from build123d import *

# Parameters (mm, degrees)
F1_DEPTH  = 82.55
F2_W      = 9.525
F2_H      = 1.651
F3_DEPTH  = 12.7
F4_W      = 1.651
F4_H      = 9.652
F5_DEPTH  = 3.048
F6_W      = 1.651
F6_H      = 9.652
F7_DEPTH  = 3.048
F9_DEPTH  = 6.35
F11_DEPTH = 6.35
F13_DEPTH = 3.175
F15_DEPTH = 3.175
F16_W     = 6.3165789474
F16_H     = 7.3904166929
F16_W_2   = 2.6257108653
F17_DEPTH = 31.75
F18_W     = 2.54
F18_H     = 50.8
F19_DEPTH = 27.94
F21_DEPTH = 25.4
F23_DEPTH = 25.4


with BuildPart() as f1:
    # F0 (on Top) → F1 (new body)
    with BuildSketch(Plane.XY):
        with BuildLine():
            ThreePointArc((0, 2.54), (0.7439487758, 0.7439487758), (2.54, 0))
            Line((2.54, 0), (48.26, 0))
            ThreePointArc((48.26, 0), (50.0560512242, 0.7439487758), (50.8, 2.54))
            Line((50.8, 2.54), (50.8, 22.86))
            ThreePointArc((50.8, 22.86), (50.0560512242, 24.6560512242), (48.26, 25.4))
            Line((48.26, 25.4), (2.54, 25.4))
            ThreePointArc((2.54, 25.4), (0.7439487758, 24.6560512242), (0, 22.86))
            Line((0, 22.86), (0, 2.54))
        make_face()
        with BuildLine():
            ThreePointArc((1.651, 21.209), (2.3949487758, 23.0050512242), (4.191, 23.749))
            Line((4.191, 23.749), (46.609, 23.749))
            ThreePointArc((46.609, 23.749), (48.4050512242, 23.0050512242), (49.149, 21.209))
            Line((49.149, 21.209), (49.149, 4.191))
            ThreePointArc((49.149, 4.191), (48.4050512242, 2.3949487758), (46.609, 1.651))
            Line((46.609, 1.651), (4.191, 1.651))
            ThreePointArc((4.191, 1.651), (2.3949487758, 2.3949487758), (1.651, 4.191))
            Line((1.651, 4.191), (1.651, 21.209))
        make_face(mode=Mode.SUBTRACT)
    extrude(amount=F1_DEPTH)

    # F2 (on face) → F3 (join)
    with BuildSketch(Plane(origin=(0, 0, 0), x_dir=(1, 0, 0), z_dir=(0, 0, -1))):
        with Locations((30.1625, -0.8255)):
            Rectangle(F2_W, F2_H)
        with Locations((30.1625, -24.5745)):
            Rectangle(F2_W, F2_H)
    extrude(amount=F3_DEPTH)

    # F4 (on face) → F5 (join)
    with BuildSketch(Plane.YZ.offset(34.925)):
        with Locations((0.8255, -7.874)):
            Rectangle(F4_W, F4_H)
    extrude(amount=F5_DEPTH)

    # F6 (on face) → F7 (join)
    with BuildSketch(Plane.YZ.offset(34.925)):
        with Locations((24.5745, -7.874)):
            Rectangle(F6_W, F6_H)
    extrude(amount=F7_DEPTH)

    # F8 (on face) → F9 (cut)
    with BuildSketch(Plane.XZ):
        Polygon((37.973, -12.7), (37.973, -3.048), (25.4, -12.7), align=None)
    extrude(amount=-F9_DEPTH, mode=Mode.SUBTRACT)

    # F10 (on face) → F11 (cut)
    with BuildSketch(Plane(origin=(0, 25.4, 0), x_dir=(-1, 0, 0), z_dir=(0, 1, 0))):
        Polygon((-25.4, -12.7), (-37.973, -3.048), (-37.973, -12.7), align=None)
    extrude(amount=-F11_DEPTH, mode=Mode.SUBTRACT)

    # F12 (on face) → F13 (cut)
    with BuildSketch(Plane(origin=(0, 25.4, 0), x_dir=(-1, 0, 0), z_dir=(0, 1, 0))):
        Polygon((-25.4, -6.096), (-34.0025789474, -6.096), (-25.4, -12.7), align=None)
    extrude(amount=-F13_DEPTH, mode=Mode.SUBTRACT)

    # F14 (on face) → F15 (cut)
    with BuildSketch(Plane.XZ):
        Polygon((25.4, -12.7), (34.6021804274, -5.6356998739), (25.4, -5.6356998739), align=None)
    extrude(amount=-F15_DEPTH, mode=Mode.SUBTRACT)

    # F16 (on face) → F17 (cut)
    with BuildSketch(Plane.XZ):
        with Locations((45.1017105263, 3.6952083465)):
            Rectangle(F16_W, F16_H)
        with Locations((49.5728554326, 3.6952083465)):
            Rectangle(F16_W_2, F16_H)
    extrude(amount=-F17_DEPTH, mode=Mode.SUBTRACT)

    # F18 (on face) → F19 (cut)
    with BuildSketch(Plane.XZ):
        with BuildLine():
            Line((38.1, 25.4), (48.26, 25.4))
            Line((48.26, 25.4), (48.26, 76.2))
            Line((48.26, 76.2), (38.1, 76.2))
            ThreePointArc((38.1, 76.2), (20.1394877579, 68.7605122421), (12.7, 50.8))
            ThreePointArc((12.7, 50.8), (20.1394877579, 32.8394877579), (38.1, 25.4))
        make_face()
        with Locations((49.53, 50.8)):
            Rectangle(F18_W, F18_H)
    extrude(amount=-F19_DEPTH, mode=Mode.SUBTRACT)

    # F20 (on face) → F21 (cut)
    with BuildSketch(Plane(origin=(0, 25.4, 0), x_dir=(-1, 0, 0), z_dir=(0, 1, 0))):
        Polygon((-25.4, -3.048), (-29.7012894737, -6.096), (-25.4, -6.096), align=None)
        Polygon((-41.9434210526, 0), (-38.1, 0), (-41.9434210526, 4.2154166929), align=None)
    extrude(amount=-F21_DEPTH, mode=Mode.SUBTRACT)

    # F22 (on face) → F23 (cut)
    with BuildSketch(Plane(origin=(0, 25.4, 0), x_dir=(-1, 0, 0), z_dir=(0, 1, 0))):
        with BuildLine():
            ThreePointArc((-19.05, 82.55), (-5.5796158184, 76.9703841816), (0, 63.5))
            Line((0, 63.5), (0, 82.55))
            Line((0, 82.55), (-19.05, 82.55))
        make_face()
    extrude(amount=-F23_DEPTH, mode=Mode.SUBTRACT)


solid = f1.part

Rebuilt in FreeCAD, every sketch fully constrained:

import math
import FreeCAD as App
import Part
import Sketcher

V = App.Vector
Q = App.Units.Quantity


def add_polygon(sketch, points):
    """Adds a closed chain of lines whose ends are joined by coincident constraints."""
    first, n = sketch.GeometryCount, len(points)
    for a, b in zip(points, points[1:] + points[:1]):
        sketch.addGeometry(Part.LineSegment(App.Vector(*a, 0), App.Vector(*b, 0)), False)
    for i in range(n):
        sketch.addConstraint(Sketcher.Constraint("Coincident", first + i, 2, first + (i + 1) % n, 1))

doc = App.newDocument("Part")
body = doc.addObject("PartDesign::Body", "Body")

# Sketch on XY plane
sketch1 = body.newObject("Sketcher::SketchObject", "Sketch")
sketch1.AttachmentSupport = (doc.getObject("XY_Plane"), [""])
sketch1.MapMode = "FlatFace"
sketch1.addGeometry([
    Part.ArcOfCircle(Part.Circle(V(2.54, 2.54, 0), V(0, 0, 1), 2.54), math.radians(180), math.radians(270)),  # 0
    Part.LineSegment(V(2.54, 0, 0), V(48.26, 0, 0)),  # 1
    Part.ArcOfCircle(Part.Circle(V(48.26, 2.54, 0), V(0, 0, 1), 2.54), math.radians(-90), math.radians(0)),  # 2
    Part.LineSegment(V(50.8, 2.54, 0), V(50.8, 22.86, 0)),  # 3
    Part.ArcOfCircle(Part.Circle(V(48.26, 22.86, 0), V(0, 0, 1), 2.54), math.radians(0), math.radians(90)),  # 4
    Part.LineSegment(V(48.26, 25.4, 0), V(2.54, 25.4, 0)),  # 5
    Part.ArcOfCircle(Part.Circle(V(2.54, 22.86, 0), V(0, 0, 1), 2.54), math.radians(90), math.radians(180)),  # 6
    Part.LineSegment(V(0, 22.86, 0), V(0, 2.54, 0)),  # 7
    Part.LineSegment(V(1.651, 4.191, 0), V(1.651, 21.209, 0)),  # 8
    Part.ArcOfCircle(Part.Circle(V(4.191, 21.209, 0), V(0, 0, 1), 2.54), math.radians(90), math.radians(180)),  # 9
    Part.LineSegment(V(4.191, 23.749, 0), V(46.609, 23.749, 0)),  # 10
    Part.ArcOfCircle(Part.Circle(V(46.609, 21.209, 0), V(0, 0, 1), 2.54), math.radians(0), math.radians(90)),  # 11
    Part.LineSegment(V(49.149, 21.209, 0), V(49.149, 4.191, 0)),  # 12
    Part.ArcOfCircle(Part.Circle(V(46.609, 4.191, 0), V(0, 0, 1), 2.54), math.radians(-90), math.radians(0)),  # 13
    Part.LineSegment(V(46.609, 1.651, 0), V(4.191, 1.651, 0)),  # 14
    Part.ArcOfCircle(Part.Circle(V(4.191, 4.191, 0), V(0, 0, 1), 2.54), math.radians(180), math.radians(270)),  # 15
], False)
sketch1.addConstraint([
    Sketcher.Constraint("Tangent", 0, 2, 1, 1),
    Sketcher.Constraint("Tangent", 1, 2, 2, 1),
    Sketcher.Constraint("Tangent", 2, 2, 3, 1),
    Sketcher.Constraint("Tangent", 3, 2, 4, 1),
    Sketcher.Constraint("Tangent", 4, 2, 5, 1),
    Sketcher.Constraint("Tangent", 5, 2, 6, 1),
    Sketcher.Constraint("Tangent", 6, 2, 7, 1),
    Sketcher.Constraint("Tangent", 7, 2, 0, 1),
    Sketcher.Constraint("Tangent", 8, 2, 9, 2),
    Sketcher.Constraint("Tangent", 9, 1, 10, 1),
    Sketcher.Constraint("Tangent", 10, 2, 11, 2),
    Sketcher.Constraint("Tangent", 11, 1, 12, 1),
    Sketcher.Constraint("Tangent", 12, 2, 13, 2),
    Sketcher.Constraint("Tangent", 13, 1, 14, 1),
    Sketcher.Constraint("Tangent", 14, 2, 15, 2),
    Sketcher.Constraint("Tangent", 15, 1, 8, 1),
    Sketcher.Constraint("Horizontal", 1),
    Sketcher.Constraint("Vertical", 3),
    Sketcher.Constraint("Horizontal", 5),
    Sketcher.Constraint("Vertical", 7),
    Sketcher.Constraint("Vertical", 8),
    Sketcher.Constraint("Horizontal", 10),
    Sketcher.Constraint("Vertical", 12),
    Sketcher.Constraint("Horizontal", 14),
    Sketcher.Constraint("Equal", 0, 2),
    Sketcher.Constraint("Equal", 2, 4),
    Sketcher.Constraint("Equal", 4, 6),
    Sketcher.Constraint("Equal", 6, 9),
    Sketcher.Constraint("Equal", 9, 11),
    Sketcher.Constraint("Equal", 11, 13),
    Sketcher.Constraint("Equal", 13, 15),
    Sketcher.Constraint("PointOnObject", 0, 2, -1),
    Sketcher.Constraint("PointOnObject", 6, 2, -2),
    Sketcher.Constraint("Radius", 0, Q("0.1 in")),
    Sketcher.Constraint("DistanceX", 1, 1, 1, 2, Q("1.8 in")),
    Sketcher.Constraint("DistanceY", 3, 1, 3, 2, Q("0.8 in")),
    Sketcher.Constraint("DistanceX", 10, 1, 10, 2, Q("1.67 in")),
    Sketcher.Constraint("DistanceY", 8, 1, 8, 2, Q("0.67 in")),
    Sketcher.Constraint("DistanceX", -1, 1, 9, 3, Q("0.165 in")),
    Sketcher.Constraint("DistanceY", -1, 1, 9, 3, Q("0.835 in")),
])
pad1 = body.newObject("PartDesign::Pad", "Pad")
pad1.Profile = sketch1
pad1.Length = Q("3.25 in")

# Sketch on XY plane
sketch2 = body.newObject("Sketcher::SketchObject", "Sketch001")
sketch2.AttachmentSupport = (doc.getObject("XY_Plane"), [""])
sketch2.MapMode = "FlatFace"
add_polygon(sketch2, [(25.4, 0), (25.4, 1.651), (34.925, 1.651), (34.925, 0)])  # lines 0-3
add_polygon(sketch2, [(25.4, 23.749), (25.4, 25.4), (34.925, 25.4), (34.925, 23.749)])  # lines 4-7
sketch2.addConstraint([
    Sketcher.Constraint("Vertical", 0),
    Sketcher.Constraint("Horizontal", 1),
    Sketcher.Constraint("Vertical", 2),
    Sketcher.Constraint("Horizontal", 3),
    Sketcher.Constraint("Vertical", 4),
    Sketcher.Constraint("Horizontal", 5),
    Sketcher.Constraint("Vertical", 6),
    Sketcher.Constraint("Horizontal", 7),
    Sketcher.Constraint("PointOnObject", 2, 2, -1),
    Sketcher.Constraint("Vertical", 3, 2, 4, 2),
    Sketcher.Constraint("Vertical", 2, 2, 5, 2),
    Sketcher.Constraint("Equal", 2, 4),
    Sketcher.Constraint("DistanceX", -1, 1, 0, 2, Q("1 in")),
    Sketcher.Constraint("DistanceY", -1, 1, 4, 2, Q("1 in")),
    Sketcher.Constraint("DistanceX", 1, 1, 1, 2, Q("0.375 in")),
    Sketcher.Constraint("DistanceY", 0, 1, 0, 2, Q("0.065 in")),
])
pad2 = body.newObject("PartDesign::Pad", "Pad001")
pad2.Profile = sketch2
pad2.Length = Q("0.5 in")
pad2.Reversed = True

# Sketch on YZ plane
sketch3 = body.newObject("Sketcher::SketchObject", "Sketch002")
sketch3.AttachmentSupport = (doc.getObject("YZ_Plane"), [""])
sketch3.MapMode = "FlatFace"
sketch3.AttachmentOffset = App.Placement(V(0, 0, 1.375 * 25.4), App.Rotation())
add_polygon(sketch3, [(0, -3.048), (0, -12.7), (1.651, -12.7), (1.651, -3.048)])  # lines 0-3
sketch3.addConstraint([
    Sketcher.Constraint("Vertical", 0),
    Sketcher.Constraint("Horizontal", 1),
    Sketcher.Constraint("Vertical", 2),
    Sketcher.Constraint("Horizontal", 3),
    Sketcher.Constraint("PointOnObject", 0, 2, -2),
    Sketcher.Constraint("DistanceY", 0, 2, 0, 1, Q("0.38 in")),
    Sketcher.Constraint("DistanceY", 0, 2, -1, 1, Q("0.5 in")),
    Sketcher.Constraint("DistanceX", 1, 1, 1, 2, Q("0.065 in")),
])
pad3 = body.newObject("PartDesign::Pad", "Pad002")
pad3.Profile = sketch3
pad3.Length = Q("0.12 in")

# Sketch on YZ plane
sketch4 = body.newObject("Sketcher::SketchObject", "Sketch003")
sketch4.AttachmentSupport = (doc.getObject("YZ_Plane"), [""])
sketch4.MapMode = "FlatFace"
sketch4.AttachmentOffset = App.Placement(V(0, 0, 1.375 * 25.4), App.Rotation())
add_polygon(sketch4, [(23.749, -3.048), (23.749, -12.7), (25.4, -12.7), (25.4, -3.048)])  # lines 0-3
sketch4.addConstraint([
    Sketcher.Constraint("Vertical", 0),
    Sketcher.Constraint("Horizontal", 1),
    Sketcher.Constraint("Vertical", 2),
    Sketcher.Constraint("Horizontal", 3),
    Sketcher.Constraint("DistanceX", -1, 1, 1, 2, Q("1 in")),
    Sketcher.Constraint("DistanceY", 0, 2, 0, 1, Q("0.38 in")),
    Sketcher.Constraint("DistanceY", 0, 2, -1, 1, Q("0.5 in")),
    Sketcher.Constraint("DistanceX", 1, 1, 1, 2, Q("0.065 in")),
])
pad4 = body.newObject("PartDesign::Pad", "Pad003")
pad4.Profile = sketch4
pad4.Length = Q("0.12 in")

# Sketch on XZ plane
sketch5 = body.newObject("Sketcher::SketchObject", "Sketch004")
sketch5.AttachmentSupport = (doc.getObject("XZ_Plane"), [""])
sketch5.MapMode = "FlatFace"
add_polygon(sketch5, [(37.973, -12.7), (37.973, -3.048), (25.4, -12.7)])  # lines 0-2
sketch5.addConstraint([
    Sketcher.Constraint("Vertical", 0),
    Sketcher.Constraint("Horizontal", 2),
    Sketcher.Constraint("DistanceX", -1, 1, 1, 2, Q("1 in")),
    Sketcher.Constraint("DistanceY", 0, 1, 0, 2, Q("0.38 in")),
    Sketcher.Constraint("DistanceY", 1, 2, -1, 1, Q("0.5 in")),
    Sketcher.Constraint("DistanceX", 2, 1, 2, 2, Q("0.495 in")),
])
pocket1 = body.newObject("PartDesign::Pocket", "Pocket")
pocket1.Profile = sketch5
pocket1.Length = Q("0.25 in")

# Sketch on XZ plane
sketch6 = body.newObject("Sketcher::SketchObject", "Sketch005")
sketch6.AttachmentSupport = (doc.getObject("XZ_Plane"), [""])
sketch6.MapMode = "FlatFace"
sketch6.AttachmentOffset = App.Placement(V(0, 0, -1 * 25.4), App.Rotation())
add_polygon(sketch6, [(25.4, -12.7), (37.973, -3.048), (37.973, -12.7)])  # lines 0-2
sketch6.addConstraint([
    Sketcher.Constraint("Vertical", 1),
    Sketcher.Constraint("Horizontal", 2),
    Sketcher.Constraint("DistanceX", -1, 1, 2, 2, Q("1 in")),
    Sketcher.Constraint("DistanceY", 1, 2, 1, 1, Q("0.38 in")),
    Sketcher.Constraint("DistanceY", 1, 2, -1, 1, Q("0.5 in")),
    Sketcher.Constraint("DistanceX", 2, 2, 2, 1, Q("0.495 in")),
])
pocket2 = body.newObject("PartDesign::Pocket", "Pocket001")
pocket2.Profile = sketch6
pocket2.Length = Q("0.25 in")
pocket2.Reversed = True

# Sketch on XZ plane
sketch7 = body.newObject("Sketcher::SketchObject", "Sketch006")
sketch7.AttachmentSupport = (doc.getObject("XZ_Plane"), [""])
sketch7.MapMode = "FlatFace"
sketch7.AttachmentOffset = App.Placement(V(0, 0, -1 * 25.4), App.Rotation())
add_polygon(sketch7, [(25.4, -6.096), (34.002579, -6.096), (25.4, -12.7)])  # lines 0-2
sketch7.addConstraint([
    Sketcher.Constraint("Horizontal", 0),
    Sketcher.Constraint("Vertical", 2),
    Sketcher.Constraint("DistanceX", -1, 1, 1, 2, Q("1 in")),
    Sketcher.Constraint("DistanceY", 2, 1, 2, 2, Q("0.26 in")),
    Sketcher.Constraint("DistanceY", 1, 2, -1, 1, Q("0.5 in")),
    Sketcher.Constraint("DistanceX", 0, 1, 0, 2, Q("8.602579 mm")),
])
pocket3 = body.newObject("PartDesign::Pocket", "Pocket002")
pocket3.Profile = sketch7
pocket3.Length = Q("0.125 in")
pocket3.Reversed = True

# Sketch on XZ plane
sketch8 = body.newObject("Sketcher::SketchObject", "Sketch007")
sketch8.AttachmentSupport = (doc.getObject("XZ_Plane"), [""])
sketch8.MapMode = "FlatFace"
add_polygon(sketch8, [(25.4, -12.7), (34.60218, -5.6357), (25.4, -5.6357)])  # lines 0-2
sketch8.addConstraint([
    Sketcher.Constraint("Horizontal", 1),
    Sketcher.Constraint("Vertical", 2),
    Sketcher.Constraint("DistanceX", -1, 1, 1, 2, Q("1 in")),
    Sketcher.Constraint("DistanceY", 2, 2, -1, 1, Q("0.5 in")),
    Sketcher.Constraint("DistanceY", 2, 2, 2, 1, Q("7.0643 mm")),
    Sketcher.Constraint("DistanceX", 1, 2, 1, 1, Q("9.20218 mm")),
])
pocket4 = body.newObject("PartDesign::Pocket", "Pocket003")
pocket4.Profile = sketch8
pocket4.Length = Q("0.125 in")

# Sketch on XZ plane
sketch9 = body.newObject("Sketcher::SketchObject", "Sketch008")
sketch9.AttachmentSupport = (doc.getObject("XZ_Plane"), [""])
sketch9.MapMode = "FlatFace"
add_polygon(sketch9, [(41.943421, 7.390417), (41.943421, 0), (50.885711, 0), (50.885711, 7.390417)])  # lines 0-3
sketch9.addConstraint([
    Sketcher.Constraint("Vertical", 0),
    Sketcher.Constraint("Horizontal", 1),
    Sketcher.Constraint("Vertical", 2),
    Sketcher.Constraint("Horizontal", 3),
    Sketcher.Constraint("PointOnObject", 0, 2, -1),
    Sketcher.Constraint("DistanceX", 1, 1, 1, 2, Q("8.94229 mm")),
    Sketcher.Constraint("DistanceY", 0, 2, 0, 1, Q("7.390417 mm")),
    Sketcher.Constraint("DistanceX", -1, 1, 0, 2, Q("41.943421 mm")),
])
pocket5 = body.newObject("PartDesign::Pocket", "Pocket004")
pocket5.Profile = sketch9
pocket5.Length = Q("1.25 in")

# Sketch on XZ plane
sketch10 = body.newObject("Sketcher::SketchObject", "Sketch009")
sketch10.AttachmentSupport = (doc.getObject("XZ_Plane"), [""])
sketch10.MapMode = "FlatFace"
sketch10.addGeometry([
    Part.LineSegment(V(38.1, 25.4, 0), V(50.8, 25.4, 0)),  # 0
    Part.LineSegment(V(50.8, 25.4, 0), V(50.8, 76.2, 0)),  # 1
    Part.LineSegment(V(50.8, 76.2, 0), V(38.1, 76.2, 0)),  # 2
    Part.ArcOfCircle(Part.Circle(V(38.1, 50.8, 0), V(0, 0, 1), 25.4), math.radians(90), math.radians(180)),  # 3
    Part.ArcOfCircle(Part.Circle(V(38.1, 50.8, 0), V(0, 0, 1), 25.4), math.radians(180), math.radians(270)),  # 4
], False)
sketch10.addConstraint([
    Sketcher.Constraint("Coincident", 0, 2, 1, 1),
    Sketcher.Constraint("Coincident", 1, 2, 2, 1),
    Sketcher.Constraint("Tangent", 2, 2, 3, 1),
    Sketcher.Constraint("Tangent", 3, 2, 4, 1),
    Sketcher.Constraint("Tangent", 4, 2, 0, 1),
    Sketcher.Constraint("Horizontal", 0),
    Sketcher.Constraint("Vertical", 1),
    Sketcher.Constraint("Horizontal", 2),
    Sketcher.Constraint("Equal", 3, 4),
    Sketcher.Constraint("Horizontal", 4, 3, 3, 2),
    Sketcher.Constraint("Radius", 3, Q("1 in")),
    Sketcher.Constraint("DistanceX", 0, 1, 0, 2, Q("0.5 in")),
    Sketcher.Constraint("DistanceY", -1, 1, 3, 3, Q("2 in")),
    Sketcher.Constraint("DistanceX", -1, 1, 0, 2, Q("2 in")),
])
pocket6 = body.newObject("PartDesign::Pocket", "Pocket005")
pocket6.Profile = sketch10
pocket6.Length = Q("1.1 in")

# Sketch on XZ plane
sketch11 = body.newObject("Sketcher::SketchObject", "Sketch010")
sketch11.AttachmentSupport = (doc.getObject("XZ_Plane"), [""])
sketch11.MapMode = "FlatFace"
sketch11.AttachmentOffset = App.Placement(V(0, 0, -1 * 25.4), App.Rotation())
add_polygon(sketch11, [(25.4, -3.048), (29.701289, -6.096), (25.4, -6.096)])  # lines 0-2
add_polygon(sketch11, [(41.943421, 0), (38.1, 0), (41.943421, 4.215417)])  # lines 3-5
sketch11.addConstraint([
    Sketcher.Constraint("Horizontal", 1),
    Sketcher.Constraint("Vertical", 2),
    Sketcher.Constraint("Horizontal", 3),
    Sketcher.Constraint("Vertical", 5),
    Sketcher.Constraint("PointOnObject", 3, 2, -1),
    Sketcher.Constraint("DistanceX", -1, 1, 1, 2, Q("1 in")),
    Sketcher.Constraint("DistanceY", 2, 1, 2, 2, Q("0.12 in")),
    Sketcher.Constraint("DistanceX", -1, 1, 3, 2, Q("1.5 in")),
    Sketcher.Constraint("DistanceY", 0, 2, -1, 1, Q("0.24 in")),
    Sketcher.Constraint("DistanceX", 1, 2, 1, 1, Q("4.301289 mm")),
    Sketcher.Constraint("DistanceX", 3, 2, 3, 1, Q("3.843421 mm")),
    Sketcher.Constraint("DistanceY", 5, 2, 5, 1, Q("4.215417 mm")),
])
pocket7 = body.newObject("PartDesign::Pocket", "Pocket006")
pocket7.Profile = sketch11
pocket7.Length = Q("1 in")
pocket7.Reversed = True

# Sketch on XZ plane
sketch12 = body.newObject("Sketcher::SketchObject", "Sketch011")
sketch12.AttachmentSupport = (doc.getObject("XZ_Plane"), [""])
sketch12.MapMode = "FlatFace"
sketch12.AttachmentOffset = App.Placement(V(0, 0, -1 * 25.4), App.Rotation())
sketch12.addGeometry([
    Part.ArcOfCircle(Part.Circle(V(19.05, 63.5, 0), V(0, 0, 1), 19.05), math.radians(90), math.radians(180)),
    Part.LineSegment(V(0, 63.5, 0), V(0, 82.55, 0)),
    Part.LineSegment(V(0, 82.55, 0), V(19.05, 82.55, 0)),
], False)
sketch12.addConstraint([
    Sketcher.Constraint("Tangent", 0, 2, 1, 1),
    Sketcher.Constraint("Coincident", 1, 2, 2, 1),
    Sketcher.Constraint("Tangent", 2, 2, 0, 1),
    Sketcher.Constraint("Vertical", 1),
    Sketcher.Constraint("Horizontal", 2),
    Sketcher.Constraint("PointOnObject", 0, 2, -2),
    Sketcher.Constraint("Radius", 0, Q("0.75 in")),
    Sketcher.Constraint("DistanceY", -1, 1, 0, 3, Q("2.5 in")),
])
pocket8 = body.newObject("PartDesign::Pocket", "Pocket007")
pocket8.Profile = sketch12
pocket8.Length = Q("1 in")
pocket8.Reversed = True

doc.recompute()
